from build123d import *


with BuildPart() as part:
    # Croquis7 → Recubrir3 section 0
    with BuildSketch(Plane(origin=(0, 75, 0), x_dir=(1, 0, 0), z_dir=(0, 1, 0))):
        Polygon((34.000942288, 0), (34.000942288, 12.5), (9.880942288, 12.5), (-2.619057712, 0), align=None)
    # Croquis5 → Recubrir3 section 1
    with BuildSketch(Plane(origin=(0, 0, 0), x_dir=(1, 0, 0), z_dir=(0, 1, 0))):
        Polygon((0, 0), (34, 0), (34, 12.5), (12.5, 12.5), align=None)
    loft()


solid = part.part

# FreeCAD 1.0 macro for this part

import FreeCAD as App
import Part
import Sketcher
from FreeCAD import Vector
Q = App.Units.Quantity

doc = App.newDocument("Part")
params = doc.addObject("Spreadsheet::Sheet", "Params")
for row, (alias, value) in enumerate([
    ("sketch1_height", "12.5 mm"),
    ("sketch1_width", "24.12 mm"),
    ("sketch2_width", "34 mm"),
    ("sketch2_width2", "21.5 mm"),
], start=1):
    params.set(f"A{row}", alias)
    params.set(f"B{row}", "=" + value)
    params.setAlias(f"B{row}", alias)

body = doc.addObject("PartDesign::Body", "Body")

sketch1 = doc.addObject("Sketcher::SketchObject", "Sketch")
body.addObject(sketch1)
sketch1.AttachmentSupport = (doc.XZ_Plane, [""])
sketch1.MapMode = "FlatFace"
sketch1.AttachmentOffset = App.Placement(Vector(0, 0, -75), App.Rotation())
sketch1.addGeometry([
    Part.LineSegment(Vector(34, 0, 0), Vector(34, -12, 0)),
    Part.LineSegment(Vector(34, -12, 0), Vector(10, -12, 0)),
    Part.LineSegment(Vector(10, -12, 0), Vector(-3, 0, 0)),
    Part.LineSegment(Vector(-3, 0, 0), Vector(34, 0, 0)),
], False)
sketch1.addConstraint([
    Sketcher.Constraint("Coincident", 0, 2, 1, 1),
    Sketcher.Constraint("Coincident", 1, 2, 2, 1),
    Sketcher.Constraint("Coincident", 2, 2, 3, 1),
    Sketcher.Constraint("Coincident", 3, 2, 0, 1),
    Sketcher.Constraint("Vertical", 0),
    Sketcher.Constraint("Horizontal", 1),
    Sketcher.Constraint("Horizontal", 3),
    Sketcher.Constraint("PointOnObject", 2, 2, -1),
    Sketcher.Constraint("Angle", 2, Q("135 deg")),
    Sketcher.Constraint("DistanceY", 0, 2, 0, 1, Q("12.5 mm")),
    Sketcher.Constraint("DistanceX", 1, 2, 1, 1, Q("24.12 mm")),
    Sketcher.Constraint("DistanceX", -1, 1, 0, 2, Q("34.000942 mm")),
])
sketch1.setExpression("Constraints[9]", "Params.sketch1_height")
sketch1.setExpression("Constraints[10]", "Params.sketch1_width")

sketch2 = doc.addObject("Sketcher::SketchObject", "Sketch001")
body.addObject(sketch2)
sketch2.AttachmentSupport = (doc.XZ_Plane, [""])
sketch2.MapMode = "FlatFace"
sketch2.addGeometry([
    Part.LineSegment(Vector(0, 0, 0), Vector(34, 0, 0)),
    Part.LineSegment(Vector(34, 0, 0), Vector(34, -12, 0)),
    Part.LineSegment(Vector(34, -12, 0), Vector(12, -12, 0)),
    Part.LineSegment(Vector(12, -12, 0), Vector(0, 0, 0)),
], False)
sketch2.addConstraint([
    Sketcher.Constraint("Coincident", 0, 2, 1, 1),
    Sketcher.Constraint("Coincident", 1, 2, 2, 1),
    Sketcher.Constraint("Coincident", 2, 2, 3, 1),
    Sketcher.Constraint("Coincident", 3, 2, 0, 1),
    Sketcher.Constraint("Horizontal", 0),
    Sketcher.Constraint("Vertical", 1),
    Sketcher.Constraint("Horizontal", 2),
    Sketcher.Constraint("Coincident", 3, 2, -1, 1),
    Sketcher.Constraint("DistanceX", 0, 1, 0, 2, Q("34 mm")),
    Sketcher.Constraint("Angle", 3, Q("135 deg")),
    Sketcher.Constraint("DistanceX", 2, 2, 2, 1, Q("21.5 mm")),
])
sketch2.setExpression("Constraints[8]", "Params.sketch2_width")
sketch2.setExpression("Constraints[10]", "Params.sketch2_width2")

additiveloft = doc.addObject("PartDesign::AdditiveLoft", "AdditiveLoft")
body.addObject(additiveloft)
additiveloft.Profile = sketch1
additiveloft.Sections = [sketch2]

doc.recompute()
